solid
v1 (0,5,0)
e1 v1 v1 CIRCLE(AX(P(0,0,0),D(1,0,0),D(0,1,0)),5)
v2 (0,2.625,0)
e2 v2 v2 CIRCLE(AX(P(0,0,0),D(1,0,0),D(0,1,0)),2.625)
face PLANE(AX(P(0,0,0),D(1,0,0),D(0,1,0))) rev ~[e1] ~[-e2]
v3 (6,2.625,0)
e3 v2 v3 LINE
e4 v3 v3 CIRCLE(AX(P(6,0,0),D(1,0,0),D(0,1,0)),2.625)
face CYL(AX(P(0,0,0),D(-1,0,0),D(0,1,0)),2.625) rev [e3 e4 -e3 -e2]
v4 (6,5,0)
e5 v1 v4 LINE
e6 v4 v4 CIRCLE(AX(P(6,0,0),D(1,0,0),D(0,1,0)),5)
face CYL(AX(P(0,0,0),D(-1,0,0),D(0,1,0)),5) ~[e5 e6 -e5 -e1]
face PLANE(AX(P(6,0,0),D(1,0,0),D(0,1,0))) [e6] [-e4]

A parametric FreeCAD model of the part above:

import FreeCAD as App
import Part
import Sketcher

doc = App.newDocument("Part")
body = doc.addObject("PartDesign::Body", "Body")

sketch1 = body.newObject("Sketcher::SketchObject", "Sketch")
sketch1.AttachmentSupport = (doc.getObject("YZ_Plane"), [""])
sketch1.MapMode = "FlatFace"
sketch1.addGeometry([
    Part.Circle(App.Vector(0, 0, 0), App.Vector(0, 0, 1), 5),
    Part.Circle(App.Vector(0, 0, 0), App.Vector(0, 0, 1), 2.6),
], False)
sketch1.addConstraint([
    Sketcher.Constraint("Coincident", 0, 3, -1, 1),
    Sketcher.Constraint("Coincident", 1, 3, -1, 1),
    Sketcher.Constraint("Diameter", 0, 10.0),
    Sketcher.Constraint("Diameter", 1, 5.25),
])
pad1 = body.newObject("PartDesign::Pad", "Pad")
pad1.Profile = sketch1
pad1.Length = 6

doc.recompute()
